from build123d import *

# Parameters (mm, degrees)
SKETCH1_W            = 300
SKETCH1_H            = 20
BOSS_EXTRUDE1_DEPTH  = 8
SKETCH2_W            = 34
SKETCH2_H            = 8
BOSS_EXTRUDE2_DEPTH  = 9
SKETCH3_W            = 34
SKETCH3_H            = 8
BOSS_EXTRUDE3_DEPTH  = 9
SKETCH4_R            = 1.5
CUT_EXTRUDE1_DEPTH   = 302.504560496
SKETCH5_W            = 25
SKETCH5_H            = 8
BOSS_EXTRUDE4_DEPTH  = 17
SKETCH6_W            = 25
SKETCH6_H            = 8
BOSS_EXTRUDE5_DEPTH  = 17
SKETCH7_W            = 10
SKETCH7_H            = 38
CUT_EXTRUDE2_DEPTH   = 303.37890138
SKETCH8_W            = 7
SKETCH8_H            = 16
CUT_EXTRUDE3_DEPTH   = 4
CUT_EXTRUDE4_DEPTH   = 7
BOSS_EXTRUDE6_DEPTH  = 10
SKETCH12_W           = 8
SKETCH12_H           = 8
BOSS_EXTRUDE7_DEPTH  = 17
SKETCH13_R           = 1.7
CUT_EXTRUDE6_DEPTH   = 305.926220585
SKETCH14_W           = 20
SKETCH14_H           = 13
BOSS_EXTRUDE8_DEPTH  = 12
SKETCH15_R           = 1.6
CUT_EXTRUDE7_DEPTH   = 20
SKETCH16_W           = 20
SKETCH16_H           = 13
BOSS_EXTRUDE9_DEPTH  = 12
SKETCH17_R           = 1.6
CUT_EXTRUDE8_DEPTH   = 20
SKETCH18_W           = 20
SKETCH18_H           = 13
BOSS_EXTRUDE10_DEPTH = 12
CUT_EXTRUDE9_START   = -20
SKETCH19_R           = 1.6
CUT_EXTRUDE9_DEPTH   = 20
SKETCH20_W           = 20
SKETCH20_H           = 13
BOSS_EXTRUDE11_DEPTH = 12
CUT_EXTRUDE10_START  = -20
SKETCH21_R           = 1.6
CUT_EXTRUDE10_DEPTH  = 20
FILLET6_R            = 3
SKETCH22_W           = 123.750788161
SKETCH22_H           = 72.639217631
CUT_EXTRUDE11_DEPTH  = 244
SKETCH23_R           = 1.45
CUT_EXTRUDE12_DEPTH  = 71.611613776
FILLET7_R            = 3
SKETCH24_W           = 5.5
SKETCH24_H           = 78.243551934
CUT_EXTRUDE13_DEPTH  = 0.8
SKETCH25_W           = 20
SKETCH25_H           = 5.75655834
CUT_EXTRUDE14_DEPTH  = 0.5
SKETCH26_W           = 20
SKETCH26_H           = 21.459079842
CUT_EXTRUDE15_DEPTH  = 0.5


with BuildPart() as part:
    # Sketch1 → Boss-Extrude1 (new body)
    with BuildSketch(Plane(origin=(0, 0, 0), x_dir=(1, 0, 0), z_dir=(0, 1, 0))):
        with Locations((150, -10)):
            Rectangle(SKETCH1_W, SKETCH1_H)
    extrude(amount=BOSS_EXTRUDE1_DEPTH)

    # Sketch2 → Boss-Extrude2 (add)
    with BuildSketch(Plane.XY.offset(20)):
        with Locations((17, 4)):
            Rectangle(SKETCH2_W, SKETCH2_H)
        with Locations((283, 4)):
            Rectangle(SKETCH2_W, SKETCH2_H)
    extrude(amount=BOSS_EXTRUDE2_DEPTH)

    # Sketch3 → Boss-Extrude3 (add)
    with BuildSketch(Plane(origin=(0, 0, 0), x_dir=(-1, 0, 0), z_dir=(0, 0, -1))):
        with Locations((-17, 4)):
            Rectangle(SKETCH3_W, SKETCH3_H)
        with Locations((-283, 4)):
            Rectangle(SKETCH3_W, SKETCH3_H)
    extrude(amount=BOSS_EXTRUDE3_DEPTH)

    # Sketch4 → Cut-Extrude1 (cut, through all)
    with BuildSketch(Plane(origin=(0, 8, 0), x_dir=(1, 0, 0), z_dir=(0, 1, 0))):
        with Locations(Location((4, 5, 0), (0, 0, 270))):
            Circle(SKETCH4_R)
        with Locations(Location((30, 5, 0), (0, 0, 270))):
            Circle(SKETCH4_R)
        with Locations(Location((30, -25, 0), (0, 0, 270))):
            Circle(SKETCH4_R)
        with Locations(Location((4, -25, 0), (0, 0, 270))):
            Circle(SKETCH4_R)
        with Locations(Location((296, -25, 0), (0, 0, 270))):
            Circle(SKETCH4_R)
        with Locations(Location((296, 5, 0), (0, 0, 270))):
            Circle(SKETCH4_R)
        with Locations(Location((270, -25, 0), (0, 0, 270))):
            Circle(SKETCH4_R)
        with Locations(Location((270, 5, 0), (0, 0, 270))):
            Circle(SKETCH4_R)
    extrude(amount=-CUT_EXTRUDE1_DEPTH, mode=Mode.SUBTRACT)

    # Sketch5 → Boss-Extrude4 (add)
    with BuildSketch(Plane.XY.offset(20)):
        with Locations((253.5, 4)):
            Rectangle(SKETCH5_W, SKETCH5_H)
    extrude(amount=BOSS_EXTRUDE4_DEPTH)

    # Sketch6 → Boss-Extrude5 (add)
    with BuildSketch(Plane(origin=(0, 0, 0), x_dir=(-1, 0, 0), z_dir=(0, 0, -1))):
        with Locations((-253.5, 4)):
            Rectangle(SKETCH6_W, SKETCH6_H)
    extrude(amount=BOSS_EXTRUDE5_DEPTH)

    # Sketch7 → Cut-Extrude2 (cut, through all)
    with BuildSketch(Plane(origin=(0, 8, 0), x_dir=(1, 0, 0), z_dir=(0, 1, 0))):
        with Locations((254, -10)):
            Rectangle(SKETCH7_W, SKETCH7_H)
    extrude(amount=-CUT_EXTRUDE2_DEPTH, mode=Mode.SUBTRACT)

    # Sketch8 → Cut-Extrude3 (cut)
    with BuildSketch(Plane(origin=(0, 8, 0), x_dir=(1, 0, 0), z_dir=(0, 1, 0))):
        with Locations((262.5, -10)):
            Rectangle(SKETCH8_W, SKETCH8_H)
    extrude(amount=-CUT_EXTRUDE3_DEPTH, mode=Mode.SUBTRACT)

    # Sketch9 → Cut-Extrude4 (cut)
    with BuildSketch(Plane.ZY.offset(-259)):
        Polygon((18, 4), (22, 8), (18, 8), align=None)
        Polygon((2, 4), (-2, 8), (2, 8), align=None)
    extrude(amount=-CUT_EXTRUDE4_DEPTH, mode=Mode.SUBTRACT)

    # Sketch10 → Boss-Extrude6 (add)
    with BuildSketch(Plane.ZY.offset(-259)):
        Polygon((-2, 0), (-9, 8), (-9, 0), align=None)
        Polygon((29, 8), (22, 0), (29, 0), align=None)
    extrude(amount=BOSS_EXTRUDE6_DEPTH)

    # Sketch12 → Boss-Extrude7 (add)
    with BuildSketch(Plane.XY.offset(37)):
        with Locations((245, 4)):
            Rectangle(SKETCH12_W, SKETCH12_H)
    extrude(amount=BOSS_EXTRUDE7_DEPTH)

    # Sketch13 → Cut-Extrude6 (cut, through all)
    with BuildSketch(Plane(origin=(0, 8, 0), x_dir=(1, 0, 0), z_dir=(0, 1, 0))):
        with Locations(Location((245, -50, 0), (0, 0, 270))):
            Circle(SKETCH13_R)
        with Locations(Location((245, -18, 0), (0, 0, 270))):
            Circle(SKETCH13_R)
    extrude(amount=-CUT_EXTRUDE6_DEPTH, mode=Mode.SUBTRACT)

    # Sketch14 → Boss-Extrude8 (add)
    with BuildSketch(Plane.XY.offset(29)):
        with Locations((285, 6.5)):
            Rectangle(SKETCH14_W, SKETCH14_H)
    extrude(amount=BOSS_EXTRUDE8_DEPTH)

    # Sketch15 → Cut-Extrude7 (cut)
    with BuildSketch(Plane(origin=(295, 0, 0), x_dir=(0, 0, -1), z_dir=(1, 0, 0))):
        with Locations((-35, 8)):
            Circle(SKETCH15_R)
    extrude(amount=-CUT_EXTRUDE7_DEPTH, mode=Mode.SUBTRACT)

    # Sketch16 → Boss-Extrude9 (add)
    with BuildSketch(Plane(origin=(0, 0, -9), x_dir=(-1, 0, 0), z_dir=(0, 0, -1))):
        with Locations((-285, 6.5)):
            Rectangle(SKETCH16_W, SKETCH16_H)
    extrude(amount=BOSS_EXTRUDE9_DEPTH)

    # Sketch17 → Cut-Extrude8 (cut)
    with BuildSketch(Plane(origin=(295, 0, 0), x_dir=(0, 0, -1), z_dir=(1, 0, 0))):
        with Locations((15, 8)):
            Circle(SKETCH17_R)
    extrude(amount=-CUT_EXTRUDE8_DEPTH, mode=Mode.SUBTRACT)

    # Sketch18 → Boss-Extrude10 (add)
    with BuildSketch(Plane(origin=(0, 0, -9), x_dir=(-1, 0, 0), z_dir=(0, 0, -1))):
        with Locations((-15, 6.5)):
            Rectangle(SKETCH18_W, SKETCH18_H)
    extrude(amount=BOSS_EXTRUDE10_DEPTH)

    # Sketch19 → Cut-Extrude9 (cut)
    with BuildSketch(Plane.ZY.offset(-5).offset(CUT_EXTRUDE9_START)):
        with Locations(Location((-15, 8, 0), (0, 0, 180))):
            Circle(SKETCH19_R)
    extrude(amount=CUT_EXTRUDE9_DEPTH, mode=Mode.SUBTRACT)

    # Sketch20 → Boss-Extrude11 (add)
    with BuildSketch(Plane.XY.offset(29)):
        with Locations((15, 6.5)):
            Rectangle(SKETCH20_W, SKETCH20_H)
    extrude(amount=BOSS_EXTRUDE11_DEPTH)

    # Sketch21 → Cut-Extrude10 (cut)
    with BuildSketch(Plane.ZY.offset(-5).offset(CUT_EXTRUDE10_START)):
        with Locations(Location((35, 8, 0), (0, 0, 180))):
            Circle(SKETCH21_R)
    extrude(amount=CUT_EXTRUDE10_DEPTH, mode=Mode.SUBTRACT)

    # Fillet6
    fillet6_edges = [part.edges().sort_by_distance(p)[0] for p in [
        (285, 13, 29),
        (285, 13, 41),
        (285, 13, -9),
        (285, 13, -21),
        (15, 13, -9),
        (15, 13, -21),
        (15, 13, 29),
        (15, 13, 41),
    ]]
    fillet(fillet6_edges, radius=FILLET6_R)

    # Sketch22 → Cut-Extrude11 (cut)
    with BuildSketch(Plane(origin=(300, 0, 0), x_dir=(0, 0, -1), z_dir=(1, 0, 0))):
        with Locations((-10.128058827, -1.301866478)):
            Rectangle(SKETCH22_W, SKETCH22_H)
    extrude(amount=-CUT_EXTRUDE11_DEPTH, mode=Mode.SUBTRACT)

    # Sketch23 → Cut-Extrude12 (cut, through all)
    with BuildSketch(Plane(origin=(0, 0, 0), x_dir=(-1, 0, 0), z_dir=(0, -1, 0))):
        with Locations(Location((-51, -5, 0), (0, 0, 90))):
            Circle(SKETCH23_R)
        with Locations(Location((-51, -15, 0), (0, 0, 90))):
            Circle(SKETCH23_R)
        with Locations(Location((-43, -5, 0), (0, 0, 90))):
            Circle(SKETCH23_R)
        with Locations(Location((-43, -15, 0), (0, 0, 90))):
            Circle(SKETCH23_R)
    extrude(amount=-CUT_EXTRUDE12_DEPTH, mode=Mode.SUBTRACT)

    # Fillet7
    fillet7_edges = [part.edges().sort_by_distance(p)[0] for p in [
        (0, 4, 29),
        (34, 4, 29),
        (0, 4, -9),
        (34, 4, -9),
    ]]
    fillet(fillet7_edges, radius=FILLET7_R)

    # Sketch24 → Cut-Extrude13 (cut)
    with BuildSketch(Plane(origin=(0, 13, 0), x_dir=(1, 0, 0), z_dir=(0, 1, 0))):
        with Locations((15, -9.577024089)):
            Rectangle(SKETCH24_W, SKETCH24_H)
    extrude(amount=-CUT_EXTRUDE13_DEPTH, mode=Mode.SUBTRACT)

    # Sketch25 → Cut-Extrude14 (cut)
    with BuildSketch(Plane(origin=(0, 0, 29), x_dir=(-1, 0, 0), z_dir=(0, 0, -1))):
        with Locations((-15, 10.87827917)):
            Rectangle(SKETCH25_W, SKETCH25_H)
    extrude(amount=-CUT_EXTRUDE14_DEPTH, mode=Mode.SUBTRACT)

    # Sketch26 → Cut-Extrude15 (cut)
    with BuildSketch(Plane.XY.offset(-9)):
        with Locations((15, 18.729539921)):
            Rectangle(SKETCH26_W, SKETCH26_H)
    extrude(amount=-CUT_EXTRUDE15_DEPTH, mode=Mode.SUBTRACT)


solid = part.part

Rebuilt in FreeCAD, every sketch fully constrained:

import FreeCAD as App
import Part
import Sketcher

V = App.Vector
Q = App.Units.Quantity


def edges_at(feature, points):
    """Names of the edges that pass closest to the given points."""
    edges = feature.Shape.Edges
    near = lambda p: min(range(len(edges)), key=lambda i: edges[i].distToShape(Part.Vertex(*p))[0])
    return sorted({f"Edge{near(p) + 1}" for p in points})


def add_polygon(sketch, points):
    """Adds a closed chain of lines whose ends are joined by coincident constraints."""
    first, n = sketch.GeometryCount, len(points)
    for a, b in zip(points, points[1:] + points[:1]):
        sketch.addGeometry(Part.LineSegment(App.Vector(*a, 0), App.Vector(*b, 0)), False)
    for i in range(n):
        sketch.addConstraint(Sketcher.Constraint("Coincident", first + i, 2, first + (i + 1) % n, 1))

doc = App.newDocument("Part")
params = doc.addObject("Spreadsheet::Sheet", "Params")
for row, (alias, value) in enumerate([
    ("sketch1_width", "300 mm"),
    ("sketch1_height", "20 mm"),
    ("pad1_length", "8 mm"),
    ("sketch2_width", "34 mm"),
    ("sketch2_height", "8 mm"),
    ("pad2_length", "9 mm"),
    ("sketch3_width", "34 mm"),
    ("sketch3_height", "8 mm"),
    ("pad3_length", "9 mm"),
    ("sketch4_diameter", "3 mm"),
    ("sketch5_width", "25 mm"),
    ("sketch5_height", "8 mm"),
    ("pad4_length", "17 mm"),
    ("sketch6_width", "25 mm"),
    ("sketch6_height", "8 mm"),
    ("pad5_length", "17 mm"),
    ("sketch7_width", "10 mm"),
    ("sketch7_height", "38 mm"),
    ("sketch8_width", "7 mm"),
    ("sketch8_height", "16 mm"),
    ("pocket3_length", "4 mm"),
    ("sketch9_width", "4 mm"),
    ("pocket4_length", "7 mm"),
    ("sketch10_width", "8 mm"),
    ("sketch10_height", "7 mm"),
    ("pad6_length", "10 mm"),
    ("sketch11_width", "8 mm"),
    ("pad7_length", "17 mm"),
    ("sketch12_diameter", "3.4 mm"),
    ("sketch13_width", "20 mm"),
    ("sketch13_height", "13 mm"),
    ("pad8_length", "12 mm"),
    ("sketch14_diameter", "3.2 mm"),
    ("pocket6_length", "20 mm"),
    ("sketch15_width", "20 mm"),
    ("sketch15_height", "13 mm"),
    ("pad9_length", "12 mm"),
    ("sketch16_diameter", "3.2 mm"),
    ("pocket7_length", "20 mm"),
    ("sketch17_width", "20 mm"),
    ("sketch17_height", "13 mm"),
    ("pad10_length", "12 mm"),
    ("sketch18_diameter", "3.2 mm"),
    ("pocket8_length", "20 mm"),
    ("sketch19_width", "20 mm"),
    ("sketch19_height", "13 mm"),
    ("pad11_length", "12 mm"),
    ("sketch20_diameter", "3.2 mm"),
    ("pocket9_length", "20 mm"),
    ("fillet_radius", "3 mm"),
    ("pocket10_length", "244 mm"),
    ("sketch22_diameter", "2.9 mm"),
    ("fillet2_radius", "3 mm"),
    ("sketch23_width", "5.5 mm"),
    ("pocket12_length", "0.8 mm"),
    ("sketch24_width", "20 mm"),
    ("pocket13_length", "0.5 mm"),
    ("sketch25_width", "20 mm"),
    ("pocket14_length", "0.5 mm"),
], start=1):
    params.set(f"A{row}", alias)
    params.set(f"B{row}", "=" + value)
    params.setAlias(f"B{row}", alias)

body = doc.addObject("PartDesign::Body", "Body")

# Sketch on XZ plane
sketch1 = doc.addObject("Sketcher::SketchObject", "Sketch")
body.addObject(sketch1)
sketch1.AttachmentSupport = (doc.XZ_Plane, [""])
sketch1.MapMode = "FlatFace"
add_polygon(sketch1, [(0, 0), (0, 20), (300, 20), (300, 0)])  # lines 0-3
sketch1.addConstraint([
    Sketcher.Constraint("Vertical", 0),
    Sketcher.Constraint("Horizontal", 1),
    Sketcher.Constraint("Vertical", 2),
    Sketcher.Constraint("Horizontal", 3),
    Sketcher.Constraint("Coincident", 3, 2, -1, 1),
    Sketcher.Constraint("DistanceX", 1, 1, 1, 2, Q("300 mm")),
    Sketcher.Constraint("DistanceY", 0, 1, 0, 2, Q("20 mm")),
])
sketch1.setExpression("Constraints[9]", "Params.sketch1_width")
sketch1.setExpression("Constraints[10]", "Params.sketch1_height")
pad1 = doc.addObject("PartDesign::Pad", "Pad")
body.addObject(pad1)
pad1.Profile = sketch1
pad1.setExpression("Length", "Params.pad1_length")
pad1.Reversed = True

# Sketch on XY plane
sketch2 = doc.addObject("Sketcher::SketchObject", "Sketch001")
body.addObject(sketch2)
sketch2.AttachmentSupport = (doc.XY_Plane, [""])
sketch2.MapMode = "FlatFace"
sketch2.AttachmentOffset = App.Placement(V(0, 0, 20), App.Rotation())
add_polygon(sketch2, [(0, 8), (0, 0), (34, 0), (34, 8)])  # lines 0-3
add_polygon(sketch2, [(266, 8), (266, 0), (300, 0), (300, 8)])  # lines 4-7
sketch2.addConstraint([
    Sketcher.Constraint("Vertical", 0),
    Sketcher.Constraint("Horizontal", 1),
    Sketcher.Constraint("Vertical", 2),
    Sketcher.Constraint("Horizontal", 3),
    Sketcher.Constraint("Vertical", 4),
    Sketcher.Constraint("Horizontal", 5),
    Sketcher.Constraint("Vertical", 6),
    Sketcher.Constraint("Horizontal", 7),
    Sketcher.Constraint("Coincident", 0, 2, -1, 1),
    Sketcher.Constraint("PointOnObject", 4, 2, -1),
    Sketcher.Constraint("Horizontal", 3, 2, 6, 2),
    Sketcher.Constraint("Equal", 3, 5),
    Sketcher.Constraint("DistanceX", 1, 1, 1, 2, Q("34 mm")),
    Sketcher.Constraint("DistanceY", 0, 2, 0, 1, Q("8 mm")),
    Sketcher.Constraint("DistanceX", -1, 1, 4, 2, Q("266 mm")),
])
sketch2.setExpression("Constraints[20]", "Params.sketch2_width")
sketch2.setExpression("Constraints[21]", "Params.sketch2_height")
pad2 = doc.addObject("PartDesign::Pad", "Pad001")
body.addObject(pad2)
pad2.Profile = sketch2
pad2.setExpression("Length", "Params.pad2_length")

# Sketch on XY plane
sketch3 = doc.addObject("Sketcher::SketchObject", "Sketch002")
body.addObject(sketch3)
sketch3.AttachmentSupport = (doc.XY_Plane, [""])
sketch3.MapMode = "FlatFace"
add_polygon(sketch3, [(34, 8), (34, 0), (0, 0), (0, 8)])  # lines 0-3
add_polygon(sketch3, [(300, 8), (300, 0), (266, 0), (266, 8)])  # lines 4-7
sketch3.addConstraint([
    Sketcher.Constraint("Vertical", 0),
    Sketcher.Constraint("Horizontal", 1),
    Sketcher.Constraint("Vertical", 2),
    Sketcher.Constraint("Horizontal", 3),
    Sketcher.Constraint("Vertical", 4),
    Sketcher.Constraint("Horizontal", 5),
    Sketcher.Constraint("Vertical", 6),
    Sketcher.Constraint("Horizontal", 7),
    Sketcher.Constraint("Coincident", 1, 2, -1, 1),
    Sketcher.Constraint("PointOnObject", 4, 2, -1),
    Sketcher.Constraint("Horizontal", 3, 2, 6, 2),
    Sketcher.Constraint("Equal", 3, 5),
    Sketcher.Constraint("DistanceX", 1, 2, 1, 1, Q("34 mm")),
    Sketcher.Constraint("DistanceY", 0, 2, 0, 1, Q("8 mm")),
    Sketcher.Constraint("DistanceX", -1, 1, 4, 2, Q("300 mm")),
])
sketch3.setExpression("Constraints[20]", "Params.sketch3_width")
sketch3.setExpression("Constraints[21]", "Params.sketch3_height")
pad3 = doc.addObject("PartDesign::Pad", "Pad002")
body.addObject(pad3)
pad3.Profile = sketch3
pad3.setExpression("Length", "Params.pad3_length")
pad3.Reversed = True

# Sketch on XZ plane
sketch4 = doc.addObject("Sketcher::SketchObject", "Sketch003")
body.addObject(sketch4)
sketch4.AttachmentSupport = (doc.XZ_Plane, [""])
sketch4.MapMode = "FlatFace"
sketch4.AttachmentOffset = App.Placement(V(0, 0, -8), App.Rotation())
sketch4.addGeometry([
    Part.Circle(V(4, -5, 0), V(0, 0, 1), 1.5),  # 0
    Part.Circle(V(30, -5, 0), V(0, 0, 1), 1.5),  # 1
    Part.Circle(V(30, 25, 0), V(0, 0, 1), 1.5),  # 2
    Part.Circle(V(4, 25, 0), V(0, 0, 1), 1.5),  # 3
    Part.Circle(V(296, 25, 0), V(0, 0, 1), 1.5),  # 4
    Part.Circle(V(296, -5, 0), V(0, 0, 1), 1.5),  # 5
    Part.Circle(V(270, 25, 0), V(0, 0, 1), 1.5),  # 6
    Part.Circle(V(270, -5, 0), V(0, 0, 1), 1.5),  # 7
], False)
sketch4.addConstraint([
    Sketcher.Constraint("Equal", 0, 1),
    Sketcher.Constraint("Equal", 1, 2),
    Sketcher.Constraint("Equal", 2, 3),
    Sketcher.Constraint("Equal", 3, 4),
    Sketcher.Constraint("Equal", 4, 5),
    Sketcher.Constraint("Equal", 5, 6),
    Sketcher.Constraint("Equal", 6, 7),
    Sketcher.Constraint("Horizontal", 0, 3, 1, 3),
    Sketcher.Constraint("Horizontal", 2, 3, 3, 3),
    Sketcher.Constraint("Horizontal", 3, 3, 4, 3),
    Sketcher.Constraint("Horizontal", 1, 3, 5, 3),
    Sketcher.Constraint("Horizontal", 4, 3, 6, 3),
    Sketcher.Constraint("Horizontal", 5, 3, 7, 3),
    Sketcher.Constraint("Vertical", 1, 3, 2, 3),
    Sketcher.Constraint("Vertical", 0, 3, 3, 3),
    Sketcher.Constraint("Vertical", 4, 3, 5, 3),
    Sketcher.Constraint("Vertical", 6, 3, 7, 3),
    Sketcher.Constraint("Diameter", 0, Q("3 mm")),
    Sketcher.Constraint("DistanceX", -1, 1, 0, 3, Q("4 mm")),
    Sketcher.Constraint("DistanceY", 0, 3, -1, 1, Q("5 mm")),
    Sketcher.Constraint("DistanceX", -1, 1, 1, 3, Q("30 mm")),
    Sketcher.Constraint("DistanceY", -1, 1, 2, 3, Q("25 mm")),
    Sketcher.Constraint("DistanceX", -1, 1, 4, 3, Q("296 mm")),
    Sketcher.Constraint("DistanceX", -1, 1, 6, 3, Q("270 mm")),
])
sketch4.setExpression("Constraints[17]", "Params.sketch4_diameter")
pocket1 = doc.addObject("PartDesign::Pocket", "Pocket")
body.addObject(pocket1)
pocket1.Profile = sketch4
pocket1.Type = "ThroughAll"
pocket1.Reversed = True

# Sketch on XY plane
sketch5 = doc.addObject("Sketcher::SketchObject", "Sketch004")
body.addObject(sketch5)
sketch5.AttachmentSupport = (doc.XY_Plane, [""])
sketch5.MapMode = "FlatFace"
sketch5.AttachmentOffset = App.Placement(V(0, 0, 20), App.Rotation())
add_polygon(sketch5, [(241, 8), (241, 0), (266, 0), (266, 8)])  # lines 0-3
sketch5.addConstraint([
    Sketcher.Constraint("Vertical", 0),
    Sketcher.Constraint("Horizontal", 1),
    Sketcher.Constraint("Vertical", 2),
    Sketcher.Constraint("Horizontal", 3),
    Sketcher.Constraint("PointOnObject", 0, 2, -1),
    Sketcher.Constraint("DistanceX", 1, 1, 1, 2, Q("25 mm")),
    Sketcher.Constraint("DistanceY", 0, 2, 0, 1, Q("8 mm")),
    Sketcher.Constraint("DistanceX", -1, 1, 0, 2, Q("241 mm")),
])
sketch5.setExpression("Constraints[9]", "Params.sketch5_width")
sketch5.setExpression("Constraints[10]", "Params.sketch5_height")
pad4 = doc.addObject("PartDesign::Pad", "Pad003")
body.addObject(pad4)
pad4.Profile = sketch5
pad4.setExpression("Length", "Params.pad4_length")

# Sketch on XY plane
sketch6 = doc.addObject("Sketcher::SketchObject", "Sketch005")
body.addObject(sketch6)
sketch6.AttachmentSupport = (doc.XY_Plane, [""])
sketch6.MapMode = "FlatFace"
add_polygon(sketch6, [(266, 8), (266, 0), (241, 0), (241, 8)])  # lines 0-3
sketch6.addConstraint([
    Sketcher.Constraint("Vertical", 0),
    Sketcher.Constraint("Horizontal", 1),
    Sketcher.Constraint("Vertical", 2),
    Sketcher.Constraint("Horizontal", 3),
    Sketcher.Constraint("PointOnObject", 0, 2, -1),
    Sketcher.Constraint("DistanceX", 1, 2, 1, 1, Q("25 mm")),
    Sketcher.Constraint("DistanceY", 0, 2, 0, 1, Q("8 mm")),
    Sketcher.Constraint("DistanceX", -1, 1, 0, 2, Q("266 mm")),
])
sketch6.setExpression("Constraints[9]", "Params.sketch6_width")
sketch6.setExpression("Constraints[10]", "Params.sketch6_height")
pad5 = doc.addObject("PartDesign::Pad", "Pad004")
body.addObject(pad5)
pad5.Profile = sketch6
pad5.setExpression("Length", "Params.pad5_length")
pad5.Reversed = True

# Sketch on XZ plane
sketch7 = doc.addObject("Sketcher::SketchObject", "Sketch006")
body.addObject(sketch7)
sketch7.AttachmentSupport = (doc.XZ_Plane, [""])
sketch7.MapMode = "FlatFace"
sketch7.AttachmentOffset = App.Placement(V(0, 0, -8), App.Rotation())
add_polygon(sketch7, [(249, -9), (249, 29), (259, 29), (259, -9)])  # lines 0-3
sketch7.addConstraint([
    Sketcher.Constraint("Vertical", 0),
    Sketcher.Constraint("Horizontal", 1),
    Sketcher.Constraint("Vertical", 2),
    Sketcher.Constraint("Horizontal", 3),
    Sketcher.Constraint("DistanceX", 1, 1, 1, 2, Q("10 mm")),
    Sketcher.Constraint("DistanceY", 0, 1, 0, 2, Q("38 mm")),
    Sketcher.Constraint("DistanceX", -1, 1, 0, 2, Q("249 mm")),
    Sketcher.Constraint("DistanceY", -1, 1, 0, 2, Q("29 mm")),
])
sketch7.setExpression("Constraints[8]", "Params.sketch7_width")
sketch7.setExpression("Constraints[9]", "Params.sketch7_height")
pocket2 = doc.addObject("PartDesign::Pocket", "Pocket001")
body.addObject(pocket2)
pocket2.Profile = sketch7
pocket2.Type = "ThroughAll"
pocket2.Reversed = True

# Sketch on XZ plane
sketch8 = doc.addObject("Sketcher::SketchObject", "Sketch007")
body.addObject(sketch8)
sketch8.AttachmentSupport = (doc.XZ_Plane, [""])
sketch8.MapMode = "FlatFace"
sketch8.AttachmentOffset = App.Placement(V(0, 0, -8), App.Rotation())
add_polygon(sketch8, [(259, 2), (259, 18), (266, 18), (266, 2)])  # lines 0-3
sketch8.addConstraint([
    Sketcher.Constraint("Vertical", 0),
    Sketcher.Constraint("Horizontal", 1),
    Sketcher.Constraint("Vertical", 2),
    Sketcher.Constraint("Horizontal", 3),
    Sketcher.Constraint("DistanceX", 1, 1, 1, 2, Q("7 mm")),
    Sketcher.Constraint("DistanceY", 0, 1, 0, 2, Q("16 mm")),
    Sketcher.Constraint("DistanceX", -1, 1, 0, 2, Q("259 mm")),
    Sketcher.Constraint("DistanceY", -1, 1, 0, 2, Q("18 mm")),
])
sketch8.setExpression("Constraints[8]", "Params.sketch8_width")
sketch8.setExpression("Constraints[9]", "Params.sketch8_height")
pocket3 = doc.addObject("PartDesign::Pocket", "Pocket002")
body.addObject(pocket3)
pocket3.Profile = sketch8
pocket3.setExpression("Length", "Params.pocket3_length")
pocket3.Reversed = True

# Sketch on YZ plane
sketch9 = doc.addObject("Sketcher::SketchObject", "Sketch008")
body.addObject(sketch9)
sketch9.AttachmentSupport = (doc.YZ_Plane, [""])
sketch9.MapMode = "FlatFace"
sketch9.AttachmentOffset = App.Placement(V(0, 0, 259), App.Rotation())
add_polygon(sketch9, [(4, 18), (8, 22), (8, 18)])  # lines 0-2
add_polygon(sketch9, [(8, -2), (4, 2), (8, 2)])  # lines 3-5
sketch9.addConstraint([
    Sketcher.Constraint("Vertical", 1),
    Sketcher.Constraint("Horizontal", 2),
    Sketcher.Constraint("Horizontal", 4),
    Sketcher.Constraint("Vertical", 5),
    Sketcher.Constraint("Perpendicular", 0, 3),
    Sketcher.Constraint("Vertical", 2, 2, 3, 2),
    Sketcher.Constraint("Vertical", 1, 2, 4, 2),
    Sketcher.Constraint("Equal", 4, 1),
    Sketcher.Constraint("DistanceX", 2, 2, 2, 1, Q("4 mm")),
    Sketcher.Constraint("DistanceX", -1, 1, 0, 2, Q("8 mm")),
    Sketcher.Constraint("DistanceY", -1, 1, 0, 2, Q("22 mm")),
    Sketcher.Constraint("DistanceY", -1, 1, 3, 2, Q("2 mm")),
])
sketch9.setExpression("Constraints[14]", "Params.sketch9_width")
pocket4 = doc.addObject("PartDesign::Pocket", "Pocket003")
body.addObject(pocket4)
pocket4.Profile = sketch9
pocket4.setExpression("Length", "Params.pocket4_length")
pocket4.Reversed = True

# Sketch on YZ plane
sketch10 = doc.addObject("Sketcher::SketchObject", "Sketch009")
body.addObject(sketch10)
sketch10.AttachmentSupport = (doc.YZ_Plane, [""])
sketch10.MapMode = "FlatFace"
sketch10.AttachmentOffset = App.Placement(V(0, 0, 259), App.Rotation())
add_polygon(sketch10, [(0, -2), (8, -9), (0, -9)])  # lines 0-2
add_polygon(sketch10, [(8, 29), (0, 22), (0, 29)])  # lines 3-5
sketch10.addConstraint([
    Sketcher.Constraint("Horizontal", 1),
    Sketcher.Constraint("Vertical", 2),
    Sketcher.Constraint("Vertical", 4),
    Sketcher.Constraint("Horizontal", 5),
    Sketcher.Constraint("PointOnObject", 1, 2, -2),
    Sketcher.Constraint("PointOnObject", 3, 2, -2),
    Sketcher.Constraint("Vertical", 0, 2, 5, 2),
    Sketcher.Constraint("Equal", 2, 4),
    Sketcher.Constraint("DistanceX", 1, 2, 1, 1, Q("8 mm")),
    Sketcher.Constraint("DistanceY", 2, 1, 2, 2, Q("7 mm")),
    Sketcher.Constraint("DistanceY", 0, 2, -1, 1, Q("9 mm")),
    Sketcher.Constraint("DistanceY", -1, 1, 3, 2, Q("22 mm")),
])
sketch10.setExpression("Constraints[14]", "Params.sketch10_width")
sketch10.setExpression("Constraints[15]", "Params.sketch10_height")
pad6 = doc.addObject("PartDesign::Pad", "Pad005")
body.addObject(pad6)
pad6.Profile = sketch10
pad6.setExpression("Length", "Params.pad6_length")
pad6.Reversed = True

# Sketch on XY plane
sketch11 = doc.addObject("Sketcher::SketchObject", "Sketch010")
body.addObject(sketch11)
sketch11.AttachmentSupport = (doc.XY_Plane, [""])
sketch11.MapMode = "FlatFace"
sketch11.AttachmentOffset = App.Placement(V(0, 0, 37), App.Rotation())
add_polygon(sketch11, [(241, 8), (241, 0), (249, 0), (249, 8)])  # lines 0-3
sketch11.addConstraint([
    Sketcher.Constraint("Vertical", 0),
    Sketcher.Constraint("Horizontal", 1),
    Sketcher.Constraint("Vertical", 2),
    Sketcher.Constraint("Horizontal", 3),
    Sketcher.Constraint("PointOnObject", 0, 2, -1),
    Sketcher.Constraint("Equal", 3, 0),
    Sketcher.Constraint("DistanceX", 1, 1, 1, 2, Q("8 mm")),
    Sketcher.Constraint("DistanceX", -1, 1, 0, 2, Q("241 mm")),
])
sketch11.setExpression("Constraints[10]", "Params.sketch11_width")
pad7 = doc.addObject("PartDesign::Pad", "Pad006")
body.addObject(pad7)
pad7.Profile = sketch11
pad7.setExpression("Length", "Params.pad7_length")

# Sketch on XZ plane
sketch12 = doc.addObject("Sketcher::SketchObject", "Sketch011")
body.addObject(sketch12)
sketch12.AttachmentSupport = (doc.XZ_Plane, [""])
sketch12.MapMode = "FlatFace"
sketch12.AttachmentOffset = App.Placement(V(0, 0, -8), App.Rotation())
sketch12.addGeometry([
    Part.Circle(V(245, 50, 0), V(0, 0, 1), 1.7),
    Part.Circle(V(245, 18, 0), V(0, 0, 1), 1.7),
], False)
sketch12.addConstraint([
    Sketcher.Constraint("Equal", 0, 1),
    Sketcher.Constraint("Vertical", 0, 3, 1, 3),
    Sketcher.Constraint("Diameter", 0, Q("3.4 mm")),
    Sketcher.Constraint("DistanceX", -1, 1, 0, 3, Q("245 mm")),
    Sketcher.Constraint("DistanceY", -1, 1, 0, 3, Q("50 mm")),
    Sketcher.Constraint("DistanceY", -1, 1, 1, 3, Q("18 mm")),
])
sketch12.setExpression("Constraints[2]", "Params.sketch12_diameter")
pocket5 = doc.addObject("PartDesign::Pocket", "Pocket004")
body.addObject(pocket5)
pocket5.Profile = sketch12
pocket5.Type = "ThroughAll"
pocket5.Reversed = True

# Sketch on XY plane
sketch13 = doc.addObject("Sketcher::SketchObject", "Sketch012")
body.addObject(sketch13)
sketch13.AttachmentSupport = (doc.XY_Plane, [""])
sketch13.MapMode = "FlatFace"
sketch13.AttachmentOffset = App.Placement(V(0, 0, 29), App.Rotation())
add_polygon(sketch13, [(275, 13), (275, 0), (295, 0), (295, 13)])  # lines 0-3
sketch13.addConstraint([
    Sketcher.Constraint("Vertical", 0),
    Sketcher.Constraint("Horizontal", 1),
    Sketcher.Constraint("Vertical", 2),
    Sketcher.Constraint("Horizontal", 3),
    Sketcher.Constraint("PointOnObject", 0, 2, -1),
    Sketcher.Constraint("DistanceX", 1, 1, 1, 2, Q("20 mm")),
    Sketcher.Constraint("DistanceY", 0, 2, 0, 1, Q("13 mm")),
    Sketcher.Constraint("DistanceX", -1, 1, 0, 2, Q("275 mm")),
])
sketch13.setExpression("Constraints[9]", "Params.sketch13_width")
sketch13.setExpression("Constraints[10]", "Params.sketch13_height")
pad8 = doc.addObject("PartDesign::Pad", "Pad007")
body.addObject(pad8)
pad8.Profile = sketch13
pad8.setExpression("Length", "Params.pad8_length")

# Sketch on YZ plane
sketch14 = doc.addObject("Sketcher::SketchObject", "Sketch013")
body.addObject(sketch14)
sketch14.AttachmentSupport = (doc.YZ_Plane, [""])
sketch14.MapMode = "FlatFace"
sketch14.AttachmentOffset = App.Placement(V(0, 0, 295), App.Rotation())
sketch14.addGeometry(Part.Circle(V(8, 35, 0), V(0, 0, 1), 1.6), False)
sketch14.addConstraint([
    Sketcher.Constraint("Diameter", 0, Q("3.2 mm")),
    Sketcher.Constraint("DistanceX", -1, 1, 0, 3, Q("8 mm")),
    Sketcher.Constraint("DistanceY", -1, 1, 0, 3, Q("35 mm")),
])
sketch14.setExpression("Constraints[0]", "Params.sketch14_diameter")
pocket6 = doc.addObject("PartDesign::Pocket", "Pocket005")
body.addObject(pocket6)
pocket6.Profile = sketch14
pocket6.setExpression("Length", "Params.pocket6_length")

# Sketch on XY plane
sketch15 = doc.addObject("Sketcher::SketchObject", "Sketch014")
body.addObject(sketch15)
sketch15.AttachmentSupport = (doc.XY_Plane, [""])
sketch15.MapMode = "FlatFace"
sketch15.AttachmentOffset = App.Placement(V(0, 0, -9), App.Rotation())
add_polygon(sketch15, [(295, 13), (295, 0), (275, 0), (275, 13)])  # lines 0-3
sketch15.addConstraint([
    Sketcher.Constraint("Vertical", 0),
    Sketcher.Constraint("Horizontal", 1),
    Sketcher.Constraint("Vertical", 2),
    Sketcher.Constraint("Horizontal", 3),
    Sketcher.Constraint("PointOnObject", 0, 2, -1),
    Sketcher.Constraint("DistanceX", 1, 2, 1, 1, Q("20 mm")),
    Sketcher.Constraint("DistanceY", 0, 2, 0, 1, Q("13 mm")),
    Sketcher.Constraint("DistanceX", -1, 1, 0, 2, Q("295 mm")),
])
sketch15.setExpression("Constraints[9]", "Params.sketch15_width")
sketch15.setExpression("Constraints[10]", "Params.sketch15_height")
pad9 = doc.addObject("PartDesign::Pad", "Pad008")
body.addObject(pad9)
pad9.Profile = sketch15
pad9.setExpression("Length", "Params.pad9_length")
pad9.Reversed = True

# Sketch on YZ plane
sketch16 = doc.addObject("Sketcher::SketchObject", "Sketch015")
body.addObject(sketch16)
sketch16.AttachmentSupport = (doc.YZ_Plane, [""])
sketch16.MapMode = "FlatFace"
sketch16.AttachmentOffset = App.Placement(V(0, 0, 295), App.Rotation())
sketch16.addGeometry(Part.Circle(V(8, -15, 0), V(0, 0, 1), 1.6), False)
sketch16.addConstraint([
    Sketcher.Constraint("Diameter", 0, Q("3.2 mm")),
    Sketcher.Constraint("DistanceX", -1, 1, 0, 3, Q("8 mm")),
    Sketcher.Constraint("DistanceY", 0, 3, -1, 1, Q("15 mm")),
])
sketch16.setExpression("Constraints[0]", "Params.sketch16_diameter")
pocket7 = doc.addObject("PartDesign::Pocket", "Pocket006")
body.addObject(pocket7)
pocket7.Profile = sketch16
pocket7.setExpression("Length", "Params.pocket7_length")

# Sketch on XY plane
sketch17 = doc.addObject("Sketcher::SketchObject", "Sketch016")
body.addObject(sketch17)
sketch17.AttachmentSupport = (doc.XY_Plane, [""])
sketch17.MapMode = "FlatFace"
sketch17.AttachmentOffset = App.Placement(V(0, 0, -9), App.Rotation())
add_polygon(sketch17, [(25, 13), (25, 0), (5, 0), (5, 13)])  # lines 0-3
sketch17.addConstraint([
    Sketcher.Constraint("Vertical", 0),
    Sketcher.Constraint("Horizontal", 1),
    Sketcher.Constraint("Vertical", 2),
    Sketcher.Constraint("Horizontal", 3),
    Sketcher.Constraint("PointOnObject", 0, 2, -1),
    Sketcher.Constraint("DistanceX", 1, 2, 1, 1, Q("20 mm")),
    Sketcher.Constraint("DistanceY", 0, 2, 0, 1, Q("13 mm")),
    Sketcher.Constraint("DistanceX", -1, 1, 0, 2, Q("25 mm")),
])
sketch17.setExpression("Constraints[9]", "Params.sketch17_width")
sketch17.setExpression("Constraints[10]", "Params.sketch17_height")
pad10 = doc.addObject("PartDesign::Pad", "Pad009")
body.addObject(pad10)
pad10.Profile = sketch17
pad10.setExpression("Length", "Params.pad10_length")
pad10.Reversed = True

# Sketch on YZ plane
sketch18 = doc.addObject("Sketcher::SketchObject", "Sketch017")
body.addObject(sketch18)
sketch18.AttachmentSupport = (doc.YZ_Plane, [""])
sketch18.MapMode = "FlatFace"
sketch18.AttachmentOffset = App.Placement(V(0, 0, 25), App.Rotation())
sketch18.addGeometry(Part.Circle(V(8, -15, 0), V(0, 0, 1), 1.6), False)
sketch18.addConstraint([
    Sketcher.Constraint("Diameter", 0, Q("3.2 mm")),
    Sketcher.Constraint("DistanceX", -1, 1, 0, 3, Q("8 mm")),
    Sketcher.Constraint("DistanceY", 0, 3, -1, 1, Q("15 mm")),
])
sketch18.setExpression("Constraints[0]", "Params.sketch18_diameter")
pocket8 = doc.addObject("PartDesign::Pocket", "Pocket007")
body.addObject(pocket8)
pocket8.Profile = sketch18
pocket8.setExpression("Length", "Params.pocket8_length")

# Sketch on XY plane
sketch19 = doc.addObject("Sketcher::SketchObject", "Sketch018")
body.addObject(sketch19)
sketch19.AttachmentSupport = (doc.XY_Plane, [""])
sketch19.MapMode = "FlatFace"
sketch19.AttachmentOffset = App.Placement(V(0, 0, 29), App.Rotation())
add_polygon(sketch19, [(5, 13), (5, 0), (25, 0), (25, 13)])  # lines 0-3
sketch19.addConstraint([
    Sketcher.Constraint("Vertical", 0),
    Sketcher.Constraint("Horizontal", 1),
    Sketcher.Constraint("Vertical", 2),
    Sketcher.Constraint("Horizontal", 3),
    Sketcher.Constraint("PointOnObject", 0, 2, -1),
    Sketcher.Constraint("DistanceX", 1, 1, 1, 2, Q("20 mm")),
    Sketcher.Constraint("DistanceY", 0, 2, 0, 1, Q("13 mm")),
    Sketcher.Constraint("DistanceX", -1, 1, 0, 2, Q("5 mm")),
])
sketch19.setExpression("Constraints[9]", "Params.sketch19_width")
sketch19.setExpression("Constraints[10]", "Params.sketch19_height")
pad11 = doc.addObject("PartDesign::Pad", "Pad010")
body.addObject(pad11)
pad11.Profile = sketch19
pad11.setExpression("Length", "Params.pad11_length")

# Sketch on YZ plane
sketch20 = doc.addObject("Sketcher::SketchObject", "Sketch019")
body.addObject(sketch20)
sketch20.AttachmentSupport = (doc.YZ_Plane, [""])
sketch20.MapMode = "FlatFace"
sketch20.AttachmentOffset = App.Placement(V(0, 0, 25), App.Rotation())
sketch20.addGeometry(Part.Circle(V(8, 35, 0), V(0, 0, 1), 1.6), False)
sketch20.addConstraint([
    Sketcher.Constraint("Diameter", 0, Q("3.2 mm")),
    Sketcher.Constraint("DistanceX", -1, 1, 0, 3, Q("8 mm")),
    Sketcher.Constraint("DistanceY", -1, 1, 0, 3, Q("35 mm")),
])
sketch20.setExpression("Constraints[0]", "Params.sketch20_diameter")
pocket9 = doc.addObject("PartDesign::Pocket", "Pocket008")
body.addObject(pocket9)
pocket9.Profile = sketch20
pocket9.setExpression("Length", "Params.pocket9_length")
doc.recompute()

fillet = doc.addObject("PartDesign::Fillet", "Fillet")
body.addObject(fillet)
fillet.Base = (pocket9, edges_at(pocket9, [
    (285, 13, 29),
    (285, 13, 41),
    (285, 13, -9),
    (285, 13, -21),
    (15, 13, -9),
    (15, 13, -21),
    (15, 13, 29),
    (15, 13, 41),
]))
fillet.setExpression("Radius", "Params.fillet_radius")

# Sketch on YZ plane
sketch21 = doc.addObject("Sketcher::SketchObject", "Sketch020")
body.addObject(sketch21)
sketch21.AttachmentSupport = (doc.YZ_Plane, [""])
sketch21.MapMode = "FlatFace"
sketch21.AttachmentOffset = App.Placement(V(0, 0, 300), App.Rotation())
add_polygon(sketch21, [(35, 72), (-38, 72), (-38, -52), (35, -52)])  # lines 0-3
sketch21.addConstraint([
    Sketcher.Constraint("Horizontal", 0),
    Sketcher.Constraint("Vertical", 1),
    Sketcher.Constraint("Horizontal", 2),
    Sketcher.Constraint("Vertical", 3),
    Sketcher.Constraint("DistanceY", 1, 2, 1, 1, Q("123.750788 mm")),
    Sketcher.Constraint("DistanceX", 0, 2, 0, 1, Q("72.639218 mm")),
    Sketcher.Constraint("DistanceX", 0, 2, -1, 1, Q("37.621475 mm")),
    Sketcher.Constraint("DistanceY", -1, 1, 0, 2, Q("72.003453 mm")),
])
pocket10 = doc.addObject("PartDesign::Pocket", "Pocket009")
body.addObject(pocket10)
pocket10.Profile = sketch21
pocket10.setExpression("Length", "Params.pocket10_length")

# Sketch on XZ plane
sketch22 = doc.addObject("Sketcher::SketchObject", "Sketch021")
body.addObject(sketch22)
sketch22.AttachmentSupport = (doc.XZ_Plane, [""])
sketch22.MapMode = "FlatFace"
sketch22.addGeometry([
    Part.Circle(V(51, 5, 0), V(0, 0, 1), 1.4),
    Part.Circle(V(51, 15, 0), V(0, 0, 1), 1.4),
    Part.Circle(V(43, 5, 0), V(0, 0, 1), 1.4),
    Part.Circle(V(43, 15, 0), V(0, 0, 1), 1.4),
], False)
sketch22.addConstraint([
    Sketcher.Constraint("Equal", 0, 1),
    Sketcher.Constraint("Equal", 1, 2),
    Sketcher.Constraint("Equal", 2, 3),
    Sketcher.Constraint("Horizontal", 0, 3, 2, 3),
    Sketcher.Constraint("Horizontal", 1, 3, 3, 3),
    Sketcher.Constraint("Vertical", 0, 3, 1, 3),
    Sketcher.Constraint("Vertical", 2, 3, 3, 3),
    Sketcher.Constraint("Diameter", 0, Q("2.9 mm")),
    Sketcher.Constraint("DistanceX", -1, 1, 0, 3, Q("51 mm")),
    Sketcher.Constraint("DistanceY", -1, 1, 0, 3, Q("5 mm")),
    Sketcher.Constraint("DistanceY", -1, 1, 1, 3, Q("15 mm")),
    Sketcher.Constraint("DistanceX", -1, 1, 2, 3, Q("43 mm")),
])
sketch22.setExpression("Constraints[7]", "Params.sketch22_diameter")
pocket11 = doc.addObject("PartDesign::Pocket", "Pocket010")
body.addObject(pocket11)
pocket11.Profile = sketch22
pocket11.Type = "ThroughAll"
doc.recompute()

fillet2 = doc.addObject("PartDesign::Fillet", "Fillet001")
body.addObject(fillet2)
fillet2.Base = (pocket11, edges_at(pocket11, [
    (0, 4, 29),
    (34, 4, 29),
    (0, 4, -9),
    (34, 4, -9),
]))
fillet2.setExpression("Radius", "Params.fillet2_radius")

# Sketch on XZ plane
sketch23 = doc.addObject("Sketcher::SketchObject", "Sketch022")
body.addObject(sketch23)
sketch23.AttachmentSupport = (doc.XZ_Plane, [""])
sketch23.MapMode = "FlatFace"
sketch23.AttachmentOffset = App.Placement(V(0, 0, -13), App.Rotation())
add_polygon(sketch23, [(12, -30), (12, 49), (18, 49), (18, -30)])  # lines 0-3
sketch23.addConstraint([
    Sketcher.Constraint("Vertical", 0),
    Sketcher.Constraint("Horizontal", 1),
    Sketcher.Constraint("Vertical", 2),
    Sketcher.Constraint("Horizontal", 3),
    Sketcher.Constraint("DistanceX", 1, 1, 1, 2, Q("5.5 mm")),
    Sketcher.Constraint("DistanceX", -1, 1, 0, 2, Q("12.25 mm")),
    Sketcher.Constraint("DistanceY", 0, 1, 0, 2, Q("78.243552 mm")),
    Sketcher.Constraint("DistanceY", -1, 1, 0, 2, Q("48.6988 mm")),
])
sketch23.setExpression("Constraints[8]", "Params.sketch23_width")
pocket12 = doc.addObject("PartDesign::Pocket", "Pocket011")
body.addObject(pocket12)
pocket12.Profile = sketch23
pocket12.setExpression("Length", "Params.pocket12_length")
pocket12.Reversed = True

# Sketch on XY plane
sketch24 = doc.addObject("Sketcher::SketchObject", "Sketch023")
body.addObject(sketch24)
sketch24.AttachmentSupport = (doc.XY_Plane, [""])
sketch24.MapMode = "FlatFace"
sketch24.AttachmentOffset = App.Placement(V(0, 0, 29), App.Rotation())
add_polygon(sketch24, [(25, 14), (25, 8), (5, 8), (5, 14)])  # lines 0-3
sketch24.addConstraint([
    Sketcher.Constraint("Vertical", 0),
    Sketcher.Constraint("Horizontal", 1),
    Sketcher.Constraint("Vertical", 2),
    Sketcher.Constraint("Horizontal", 3),
    Sketcher.Constraint("DistanceX", 1, 2, 1, 1, Q("20 mm")),
    Sketcher.Constraint("DistanceX", -1, 1, 0, 2, Q("25 mm")),
    Sketcher.Constraint("DistanceY", -1, 1, 0, 2, Q("8 mm")),
    Sketcher.Constraint("DistanceY", 0, 2, 0, 1, Q("5.756558 mm")),
])
sketch24.setExpression("Constraints[8]", "Params.sketch24_width")
pocket13 = doc.addObject("PartDesign::Pocket", "Pocket012")
body.addObject(pocket13)
pocket13.Profile = sketch24
pocket13.setExpression("Length", "Params.pocket13_length")
pocket13.Reversed = True

# Sketch on XY plane
sketch25 = doc.addObject("Sketcher::SketchObject", "Sketch024")
body.addObject(sketch25)
sketch25.AttachmentSupport = (doc.XY_Plane, [""])
sketch25.MapMode = "FlatFace"
sketch25.AttachmentOffset = App.Placement(V(0, 0, -9), App.Rotation())
add_polygon(sketch25, [(5, 29), (5, 8), (25, 8), (25, 29)])  # lines 0-3
sketch25.addConstraint([
    Sketcher.Constraint("Vertical", 0),
    Sketcher.Constraint("Horizontal", 1),
    Sketcher.Constraint("Vertical", 2),
    Sketcher.Constraint("Horizontal", 3),
    Sketcher.Constraint("DistanceX", 1, 1, 1, 2, Q("20 mm")),
    Sketcher.Constraint("DistanceX", -1, 1, 0, 2, Q("5 mm")),
    Sketcher.Constraint("DistanceY", -1, 1, 0, 2, Q("8 mm")),
    Sketcher.Constraint("DistanceY", 0, 2, 0, 1, Q("21.45908 mm")),
])
sketch25.setExpression("Constraints[8]", "Params.sketch25_width")
pocket14 = doc.addObject("PartDesign::Pocket", "Pocket013")
body.addObject(pocket14)
pocket14.Profile = sketch25
pocket14.setExpression("Length", "Params.pocket14_length")

doc.recompute()
